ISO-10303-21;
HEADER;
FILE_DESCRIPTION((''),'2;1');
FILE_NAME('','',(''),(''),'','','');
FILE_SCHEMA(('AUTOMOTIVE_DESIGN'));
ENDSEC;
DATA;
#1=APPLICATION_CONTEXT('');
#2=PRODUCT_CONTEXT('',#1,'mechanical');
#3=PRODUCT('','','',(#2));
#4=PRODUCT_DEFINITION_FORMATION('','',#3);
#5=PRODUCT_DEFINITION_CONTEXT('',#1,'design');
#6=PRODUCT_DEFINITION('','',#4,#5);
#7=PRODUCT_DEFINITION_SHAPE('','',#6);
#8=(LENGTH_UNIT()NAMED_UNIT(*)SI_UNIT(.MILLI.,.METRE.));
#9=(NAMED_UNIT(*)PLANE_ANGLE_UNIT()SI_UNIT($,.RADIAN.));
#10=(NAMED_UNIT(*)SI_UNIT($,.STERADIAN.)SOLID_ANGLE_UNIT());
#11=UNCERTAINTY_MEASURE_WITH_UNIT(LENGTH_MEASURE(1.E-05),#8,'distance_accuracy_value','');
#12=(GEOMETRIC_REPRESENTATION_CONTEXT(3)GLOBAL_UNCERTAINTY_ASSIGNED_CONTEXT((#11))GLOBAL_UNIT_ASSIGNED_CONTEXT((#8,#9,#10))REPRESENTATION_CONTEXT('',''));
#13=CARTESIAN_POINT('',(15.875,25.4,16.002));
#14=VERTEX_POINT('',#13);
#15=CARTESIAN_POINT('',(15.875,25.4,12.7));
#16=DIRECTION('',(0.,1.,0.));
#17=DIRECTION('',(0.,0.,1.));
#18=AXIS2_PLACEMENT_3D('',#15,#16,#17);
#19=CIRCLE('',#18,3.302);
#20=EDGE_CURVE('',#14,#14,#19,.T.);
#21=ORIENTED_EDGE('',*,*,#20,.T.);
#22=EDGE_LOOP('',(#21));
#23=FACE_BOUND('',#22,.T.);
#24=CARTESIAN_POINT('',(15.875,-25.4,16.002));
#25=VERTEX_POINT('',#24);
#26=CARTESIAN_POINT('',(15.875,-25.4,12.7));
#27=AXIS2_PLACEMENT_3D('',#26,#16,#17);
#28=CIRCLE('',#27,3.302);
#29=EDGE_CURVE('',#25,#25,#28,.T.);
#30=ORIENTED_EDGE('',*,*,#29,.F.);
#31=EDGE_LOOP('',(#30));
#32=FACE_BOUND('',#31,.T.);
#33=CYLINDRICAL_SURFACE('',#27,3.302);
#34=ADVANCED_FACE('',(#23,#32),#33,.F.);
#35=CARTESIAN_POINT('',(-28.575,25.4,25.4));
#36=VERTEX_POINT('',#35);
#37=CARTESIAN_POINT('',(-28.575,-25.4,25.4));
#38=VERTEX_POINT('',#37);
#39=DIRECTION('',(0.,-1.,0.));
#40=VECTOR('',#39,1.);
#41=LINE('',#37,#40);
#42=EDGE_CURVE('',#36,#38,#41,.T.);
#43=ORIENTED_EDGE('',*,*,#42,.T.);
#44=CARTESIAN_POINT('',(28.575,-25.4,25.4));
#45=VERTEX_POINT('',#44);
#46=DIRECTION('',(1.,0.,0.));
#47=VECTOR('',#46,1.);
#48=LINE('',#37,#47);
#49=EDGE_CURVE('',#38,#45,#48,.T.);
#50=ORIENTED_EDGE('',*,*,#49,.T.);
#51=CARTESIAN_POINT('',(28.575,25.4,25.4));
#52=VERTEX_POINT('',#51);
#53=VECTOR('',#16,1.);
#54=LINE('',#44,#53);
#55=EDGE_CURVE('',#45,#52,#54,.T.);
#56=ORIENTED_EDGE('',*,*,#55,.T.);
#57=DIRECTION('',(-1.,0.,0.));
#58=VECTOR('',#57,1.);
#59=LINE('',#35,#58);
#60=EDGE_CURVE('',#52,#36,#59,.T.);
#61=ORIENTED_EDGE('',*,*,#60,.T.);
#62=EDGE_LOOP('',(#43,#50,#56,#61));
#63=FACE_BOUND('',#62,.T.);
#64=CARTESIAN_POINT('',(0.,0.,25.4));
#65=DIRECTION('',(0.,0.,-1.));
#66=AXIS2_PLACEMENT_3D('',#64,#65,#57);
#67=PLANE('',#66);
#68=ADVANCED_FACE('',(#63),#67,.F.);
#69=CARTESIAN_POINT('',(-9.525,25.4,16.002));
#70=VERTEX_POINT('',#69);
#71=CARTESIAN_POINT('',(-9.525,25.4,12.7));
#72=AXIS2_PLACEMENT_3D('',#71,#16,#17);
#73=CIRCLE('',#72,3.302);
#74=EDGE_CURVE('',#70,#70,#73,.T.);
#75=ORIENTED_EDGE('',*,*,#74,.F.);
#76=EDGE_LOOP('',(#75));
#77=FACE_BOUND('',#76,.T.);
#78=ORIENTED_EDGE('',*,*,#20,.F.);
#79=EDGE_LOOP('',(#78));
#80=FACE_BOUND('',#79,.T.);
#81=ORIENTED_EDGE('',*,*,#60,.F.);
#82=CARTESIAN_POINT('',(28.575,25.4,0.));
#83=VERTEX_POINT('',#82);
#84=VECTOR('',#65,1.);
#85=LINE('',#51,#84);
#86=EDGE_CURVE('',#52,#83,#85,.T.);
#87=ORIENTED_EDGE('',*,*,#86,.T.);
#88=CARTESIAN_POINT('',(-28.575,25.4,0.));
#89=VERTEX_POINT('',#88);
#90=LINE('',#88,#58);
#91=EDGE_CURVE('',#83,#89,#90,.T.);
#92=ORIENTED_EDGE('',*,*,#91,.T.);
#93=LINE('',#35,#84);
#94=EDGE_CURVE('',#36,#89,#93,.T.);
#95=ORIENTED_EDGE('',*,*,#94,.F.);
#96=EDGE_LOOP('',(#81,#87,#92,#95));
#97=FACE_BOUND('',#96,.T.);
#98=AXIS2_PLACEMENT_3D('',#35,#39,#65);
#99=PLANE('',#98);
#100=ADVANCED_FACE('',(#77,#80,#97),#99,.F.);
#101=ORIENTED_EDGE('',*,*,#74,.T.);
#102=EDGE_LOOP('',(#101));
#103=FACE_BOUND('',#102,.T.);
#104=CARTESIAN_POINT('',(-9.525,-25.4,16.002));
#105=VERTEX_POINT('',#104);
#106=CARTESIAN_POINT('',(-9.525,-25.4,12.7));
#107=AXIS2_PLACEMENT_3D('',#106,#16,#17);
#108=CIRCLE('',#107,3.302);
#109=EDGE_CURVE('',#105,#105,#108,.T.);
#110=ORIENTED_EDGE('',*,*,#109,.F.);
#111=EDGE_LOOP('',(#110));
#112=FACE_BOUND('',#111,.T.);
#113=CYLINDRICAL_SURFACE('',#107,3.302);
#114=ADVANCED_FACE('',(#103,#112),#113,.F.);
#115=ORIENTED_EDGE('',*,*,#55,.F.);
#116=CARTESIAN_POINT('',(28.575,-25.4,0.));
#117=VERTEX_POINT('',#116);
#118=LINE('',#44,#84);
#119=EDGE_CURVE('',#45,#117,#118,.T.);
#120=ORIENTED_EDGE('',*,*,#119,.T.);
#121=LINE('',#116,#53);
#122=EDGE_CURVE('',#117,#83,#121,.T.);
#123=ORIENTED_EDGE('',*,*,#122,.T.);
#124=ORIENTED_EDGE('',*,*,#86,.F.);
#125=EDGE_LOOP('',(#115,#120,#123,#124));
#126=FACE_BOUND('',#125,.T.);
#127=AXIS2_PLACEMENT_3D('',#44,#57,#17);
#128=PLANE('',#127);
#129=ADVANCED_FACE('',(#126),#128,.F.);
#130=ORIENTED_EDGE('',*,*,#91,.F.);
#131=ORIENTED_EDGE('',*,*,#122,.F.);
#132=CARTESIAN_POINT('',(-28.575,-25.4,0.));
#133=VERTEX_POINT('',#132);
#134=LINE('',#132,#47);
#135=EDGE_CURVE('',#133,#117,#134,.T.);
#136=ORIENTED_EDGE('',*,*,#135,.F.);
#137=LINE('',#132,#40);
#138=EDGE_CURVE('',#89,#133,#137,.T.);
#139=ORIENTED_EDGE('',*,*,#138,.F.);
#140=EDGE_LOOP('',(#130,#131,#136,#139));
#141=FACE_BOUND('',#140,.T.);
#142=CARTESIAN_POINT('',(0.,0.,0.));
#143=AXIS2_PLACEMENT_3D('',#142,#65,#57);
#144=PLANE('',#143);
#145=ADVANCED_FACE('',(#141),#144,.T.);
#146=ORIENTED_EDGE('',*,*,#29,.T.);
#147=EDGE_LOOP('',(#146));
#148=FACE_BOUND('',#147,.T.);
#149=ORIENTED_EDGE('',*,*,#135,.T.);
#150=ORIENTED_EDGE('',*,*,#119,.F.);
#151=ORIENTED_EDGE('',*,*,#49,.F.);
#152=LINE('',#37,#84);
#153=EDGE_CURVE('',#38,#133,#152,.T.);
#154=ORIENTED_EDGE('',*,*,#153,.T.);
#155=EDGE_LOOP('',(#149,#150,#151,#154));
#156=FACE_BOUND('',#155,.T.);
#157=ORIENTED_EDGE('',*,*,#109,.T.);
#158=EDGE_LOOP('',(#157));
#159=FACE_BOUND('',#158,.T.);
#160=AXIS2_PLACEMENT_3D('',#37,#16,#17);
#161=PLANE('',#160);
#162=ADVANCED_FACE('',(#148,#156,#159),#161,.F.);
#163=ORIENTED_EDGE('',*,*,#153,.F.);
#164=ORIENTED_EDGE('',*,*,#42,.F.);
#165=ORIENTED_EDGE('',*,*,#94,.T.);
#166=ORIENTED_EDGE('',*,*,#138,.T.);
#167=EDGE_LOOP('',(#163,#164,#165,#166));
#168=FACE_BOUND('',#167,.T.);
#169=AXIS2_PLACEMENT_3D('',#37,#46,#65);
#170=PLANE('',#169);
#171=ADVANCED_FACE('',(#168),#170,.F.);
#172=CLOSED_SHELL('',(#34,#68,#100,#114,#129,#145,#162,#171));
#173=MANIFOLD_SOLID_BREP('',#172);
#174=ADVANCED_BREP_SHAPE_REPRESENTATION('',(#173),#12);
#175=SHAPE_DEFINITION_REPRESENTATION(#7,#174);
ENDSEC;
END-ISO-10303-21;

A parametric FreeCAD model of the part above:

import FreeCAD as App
import Part
import Sketcher
Q = App.Units.Quantity

doc = App.newDocument("Part")
body = doc.addObject("PartDesign::Body", "Body")

# Sketch on XY plane
sketch1 = body.newObject("Sketcher::SketchObject", "Sketch")
sketch1.AttachmentSupport = (doc.getObject("XY_Plane"), [""])
sketch1.MapMode = "FlatFace"
sketch1.addGeometry(Part.LineSegment(App.Vector(-28.575, 25.4, 0), App.Vector(-28.575, -25.4, 0)), False)
sketch1.addGeometry(Part.LineSegment(App.Vector(-28.575, -25.4, 0), App.Vector(28.575, -25.4, 0)), False)
sketch1.addGeometry(Part.LineSegment(App.Vector(28.575, -25.4, 0), App.Vector(28.575, 25.4, 0)), False)
sketch1.addGeometry(Part.LineSegment(App.Vector(28.575, 25.4, 0), App.Vector(-28.575, 25.4, 0)), False)
sketch1.addConstraint(Sketcher.Constraint("Coincident", 0, 2, 1, 1))
sketch1.addConstraint(Sketcher.Constraint("Coincident", 1, 2, 2, 1))
sketch1.addConstraint(Sketcher.Constraint("Coincident", 2, 2, 3, 1))
sketch1.addConstraint(Sketcher.Constraint("Coincident", 3, 2, 0, 1))
sketch1.addConstraint(Sketcher.Constraint("Vertical", 0))
sketch1.addConstraint(Sketcher.Constraint("Horizontal", 1))
sketch1.addConstraint(Sketcher.Constraint("Vertical", 2))
sketch1.addConstraint(Sketcher.Constraint("Horizontal", 3))
sketch1.addConstraint(Sketcher.Constraint("Symmetric", 0, 2, 2, 2, -1, 1))
sketch1.addConstraint(Sketcher.Constraint("DistanceY", 0, 2, 0, 1, Q("2 in")))
sketch1.addConstraint(Sketcher.Constraint("DistanceX", 1, 1, 1, 2, Q("2.25 in")))
pad1 = body.newObject("PartDesign::Pad", "Pad")
pad1.Profile = sketch1
pad1.Length = Q("1 in")

# Sketch on XZ plane
sketch2 = body.newObject("Sketcher::SketchObject", "Sketch001")
sketch2.AttachmentSupport = (doc.getObject("XZ_Plane"), [""])
sketch2.MapMode = "FlatFace"
sketch2.AttachmentOffset = App.Placement(App.Vector(0, 0, -1 * 25.4), App.Rotation())
sketch2.addGeometry(Part.Circle(App.Vector(-9.525, 12.7, 0), App.Vector(0, 0, 1), 3.302), False)
sketch2.addGeometry(Part.Circle(App.Vector(15.875, 12.7, 0), App.Vector(0, 0, 1), 3.302), False)
sketch2.addConstraint(Sketcher.Constraint("Equal", 0, 1))
sketch2.addConstraint(Sketcher.Constraint("Horizontal", 0, 3, 1, 3))
sketch2.addConstraint(Sketcher.Constraint("Diameter", 0, Q("0.26 in")))
sketch2.addConstraint(Sketcher.Constraint("DistanceX", 0, 3, 1, 3, Q("1 in")))
sketch2.addConstraint(Sketcher.Constraint("DistanceY", -1, 1, 0, 3, Q("0.5 in")))
sketch2.addConstraint(Sketcher.Constraint("DistanceX", 0, 3, -1, 1, Q("0.375 in")))
pocket1 = body.newObject("PartDesign::Pocket", "Pocket")
pocket1.Profile = sketch2
pocket1.Type = "ThroughAll"
pocket1.Reversed = True

doc.recompute()
